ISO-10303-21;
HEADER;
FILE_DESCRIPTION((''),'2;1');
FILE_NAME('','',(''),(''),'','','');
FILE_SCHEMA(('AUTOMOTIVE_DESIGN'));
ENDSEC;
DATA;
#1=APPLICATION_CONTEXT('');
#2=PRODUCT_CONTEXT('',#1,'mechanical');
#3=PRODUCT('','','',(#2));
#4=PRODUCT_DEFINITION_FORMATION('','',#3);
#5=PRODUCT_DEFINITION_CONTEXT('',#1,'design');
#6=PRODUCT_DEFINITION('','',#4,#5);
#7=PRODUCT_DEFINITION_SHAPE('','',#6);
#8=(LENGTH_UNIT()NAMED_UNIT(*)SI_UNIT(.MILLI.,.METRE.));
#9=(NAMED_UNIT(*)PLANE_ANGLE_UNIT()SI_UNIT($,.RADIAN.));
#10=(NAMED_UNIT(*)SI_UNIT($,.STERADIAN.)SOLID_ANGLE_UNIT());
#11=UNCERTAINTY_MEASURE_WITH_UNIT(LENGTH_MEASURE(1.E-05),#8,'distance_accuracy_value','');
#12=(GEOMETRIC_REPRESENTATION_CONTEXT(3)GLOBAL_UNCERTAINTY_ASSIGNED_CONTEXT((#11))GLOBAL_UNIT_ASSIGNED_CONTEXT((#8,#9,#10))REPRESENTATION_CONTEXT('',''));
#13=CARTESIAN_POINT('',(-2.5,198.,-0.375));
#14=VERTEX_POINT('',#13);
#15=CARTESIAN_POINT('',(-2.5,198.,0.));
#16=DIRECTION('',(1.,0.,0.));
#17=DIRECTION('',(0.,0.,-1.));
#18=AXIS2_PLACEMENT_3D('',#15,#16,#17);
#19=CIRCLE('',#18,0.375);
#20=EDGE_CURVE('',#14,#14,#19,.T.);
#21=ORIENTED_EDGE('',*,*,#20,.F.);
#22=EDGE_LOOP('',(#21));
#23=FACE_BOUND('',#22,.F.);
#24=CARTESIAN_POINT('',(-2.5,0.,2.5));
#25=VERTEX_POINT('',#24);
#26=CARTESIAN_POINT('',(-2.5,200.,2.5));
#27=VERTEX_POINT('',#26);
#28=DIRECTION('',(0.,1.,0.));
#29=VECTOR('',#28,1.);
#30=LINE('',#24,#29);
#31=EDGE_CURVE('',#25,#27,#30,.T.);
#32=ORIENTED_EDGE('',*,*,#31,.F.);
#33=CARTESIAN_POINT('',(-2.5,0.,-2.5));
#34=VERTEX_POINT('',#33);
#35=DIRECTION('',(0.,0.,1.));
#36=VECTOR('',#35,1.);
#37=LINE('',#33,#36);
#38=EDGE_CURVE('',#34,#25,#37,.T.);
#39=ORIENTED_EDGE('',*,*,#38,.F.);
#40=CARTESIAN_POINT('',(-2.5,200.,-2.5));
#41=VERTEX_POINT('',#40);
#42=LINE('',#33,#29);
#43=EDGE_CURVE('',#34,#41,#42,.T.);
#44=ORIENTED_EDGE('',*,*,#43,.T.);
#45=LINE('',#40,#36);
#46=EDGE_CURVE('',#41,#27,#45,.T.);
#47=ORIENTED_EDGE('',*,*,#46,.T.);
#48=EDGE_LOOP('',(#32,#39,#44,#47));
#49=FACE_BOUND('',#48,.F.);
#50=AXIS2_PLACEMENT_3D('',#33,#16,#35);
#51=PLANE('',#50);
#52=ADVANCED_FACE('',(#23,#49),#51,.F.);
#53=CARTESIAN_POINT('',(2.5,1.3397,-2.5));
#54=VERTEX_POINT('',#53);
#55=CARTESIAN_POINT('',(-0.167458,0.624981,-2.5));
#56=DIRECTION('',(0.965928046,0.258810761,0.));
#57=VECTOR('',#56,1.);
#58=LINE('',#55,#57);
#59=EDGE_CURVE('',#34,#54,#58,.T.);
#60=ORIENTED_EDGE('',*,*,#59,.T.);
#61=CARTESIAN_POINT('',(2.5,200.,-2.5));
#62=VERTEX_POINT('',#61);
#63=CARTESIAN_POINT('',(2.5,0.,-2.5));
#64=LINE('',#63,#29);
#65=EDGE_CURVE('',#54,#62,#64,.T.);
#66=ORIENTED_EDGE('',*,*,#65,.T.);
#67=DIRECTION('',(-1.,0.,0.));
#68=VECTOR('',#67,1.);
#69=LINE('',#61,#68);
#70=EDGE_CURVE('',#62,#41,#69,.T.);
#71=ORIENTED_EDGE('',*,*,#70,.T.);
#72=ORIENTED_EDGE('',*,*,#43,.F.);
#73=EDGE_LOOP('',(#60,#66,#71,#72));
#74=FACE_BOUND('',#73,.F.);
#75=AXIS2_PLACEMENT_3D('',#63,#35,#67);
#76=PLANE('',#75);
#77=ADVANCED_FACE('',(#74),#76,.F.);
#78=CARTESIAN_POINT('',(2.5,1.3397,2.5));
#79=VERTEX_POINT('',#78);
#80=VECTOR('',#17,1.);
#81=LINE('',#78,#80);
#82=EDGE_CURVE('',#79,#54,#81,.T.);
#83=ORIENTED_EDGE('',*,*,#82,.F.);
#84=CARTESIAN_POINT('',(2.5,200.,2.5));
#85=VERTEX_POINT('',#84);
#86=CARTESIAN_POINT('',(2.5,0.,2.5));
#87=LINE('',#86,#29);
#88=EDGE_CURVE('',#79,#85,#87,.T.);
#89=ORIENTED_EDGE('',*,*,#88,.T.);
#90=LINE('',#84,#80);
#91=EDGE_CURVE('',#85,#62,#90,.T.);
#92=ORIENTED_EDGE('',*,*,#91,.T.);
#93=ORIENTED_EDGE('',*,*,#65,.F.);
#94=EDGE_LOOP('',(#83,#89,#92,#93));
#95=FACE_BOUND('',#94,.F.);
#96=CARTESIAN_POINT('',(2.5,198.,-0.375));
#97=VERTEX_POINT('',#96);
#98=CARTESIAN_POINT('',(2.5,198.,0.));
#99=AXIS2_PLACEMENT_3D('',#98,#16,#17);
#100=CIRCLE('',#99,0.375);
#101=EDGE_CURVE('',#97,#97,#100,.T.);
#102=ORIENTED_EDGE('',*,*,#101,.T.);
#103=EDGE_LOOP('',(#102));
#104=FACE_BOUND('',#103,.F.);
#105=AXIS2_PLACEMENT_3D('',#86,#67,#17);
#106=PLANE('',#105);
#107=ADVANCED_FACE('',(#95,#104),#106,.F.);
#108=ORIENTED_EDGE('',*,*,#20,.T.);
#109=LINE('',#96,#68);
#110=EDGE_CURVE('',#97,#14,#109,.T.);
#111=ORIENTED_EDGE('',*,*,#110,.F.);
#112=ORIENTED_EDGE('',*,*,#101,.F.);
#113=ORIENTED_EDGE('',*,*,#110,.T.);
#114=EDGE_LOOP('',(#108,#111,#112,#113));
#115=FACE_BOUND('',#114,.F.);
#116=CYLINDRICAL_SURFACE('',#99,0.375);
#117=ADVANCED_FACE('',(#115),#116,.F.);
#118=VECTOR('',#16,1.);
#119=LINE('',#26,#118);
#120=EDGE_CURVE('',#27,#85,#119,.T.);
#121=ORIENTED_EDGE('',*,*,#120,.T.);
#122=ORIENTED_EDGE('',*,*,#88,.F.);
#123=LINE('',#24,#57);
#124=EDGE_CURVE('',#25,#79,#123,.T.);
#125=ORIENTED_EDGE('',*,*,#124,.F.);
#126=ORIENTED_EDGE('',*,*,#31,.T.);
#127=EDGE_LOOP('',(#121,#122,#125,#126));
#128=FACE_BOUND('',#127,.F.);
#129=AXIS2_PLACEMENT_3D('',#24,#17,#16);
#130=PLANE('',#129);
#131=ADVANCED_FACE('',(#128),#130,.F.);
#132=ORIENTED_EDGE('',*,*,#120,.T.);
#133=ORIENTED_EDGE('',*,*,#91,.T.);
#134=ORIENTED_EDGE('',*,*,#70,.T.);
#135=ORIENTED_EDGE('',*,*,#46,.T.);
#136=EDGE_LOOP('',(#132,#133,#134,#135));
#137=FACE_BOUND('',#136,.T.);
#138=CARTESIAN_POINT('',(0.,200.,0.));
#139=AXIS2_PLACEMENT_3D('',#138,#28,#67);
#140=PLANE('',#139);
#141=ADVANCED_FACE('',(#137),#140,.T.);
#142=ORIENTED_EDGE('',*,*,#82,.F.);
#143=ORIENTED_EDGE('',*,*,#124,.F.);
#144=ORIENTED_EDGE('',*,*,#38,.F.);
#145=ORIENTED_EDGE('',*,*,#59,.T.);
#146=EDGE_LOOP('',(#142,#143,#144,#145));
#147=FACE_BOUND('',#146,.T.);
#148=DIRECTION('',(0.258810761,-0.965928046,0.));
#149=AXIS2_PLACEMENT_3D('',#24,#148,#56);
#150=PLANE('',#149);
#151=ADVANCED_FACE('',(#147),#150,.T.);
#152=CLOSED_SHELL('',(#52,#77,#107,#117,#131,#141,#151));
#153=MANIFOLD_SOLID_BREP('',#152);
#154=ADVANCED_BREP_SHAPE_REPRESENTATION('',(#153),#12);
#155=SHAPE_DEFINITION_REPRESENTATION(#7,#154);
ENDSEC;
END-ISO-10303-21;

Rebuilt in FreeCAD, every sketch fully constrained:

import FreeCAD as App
import Part
import Sketcher
Q = App.Units.Quantity

doc = App.newDocument("Part")
body = doc.addObject("PartDesign::Body", "Body")

sketch1 = body.newObject("Sketcher::SketchObject", "Sketch")
sketch1.AttachmentSupport = (doc.getObject("XZ_Plane"), [""])
sketch1.MapMode = "FlatFace"
sketch1.addGeometry([
    Part.LineSegment(App.Vector(-2.5, -2.5, 0), App.Vector(-2.5, 2.5, 0)),
    Part.LineSegment(App.Vector(-2.5, 2.5, 0), App.Vector(2.5, 2.5, 0)),
    Part.LineSegment(App.Vector(2.5, 2.5, 0), App.Vector(2.5, -2.5, 0)),
    Part.LineSegment(App.Vector(2.5, -2.5, 0), App.Vector(-2.5, -2.5, 0)),
], False)
sketch1.addConstraint([
    Sketcher.Constraint("Coincident", 0, 2, 1, 1),
    Sketcher.Constraint("Coincident", 1, 2, 2, 1),
    Sketcher.Constraint("Coincident", 2, 2, 3, 1),
    Sketcher.Constraint("Coincident", 3, 2, 0, 1),
    Sketcher.Constraint("Vertical", 0),
    Sketcher.Constraint("Horizontal", 1),
    Sketcher.Constraint("Vertical", 2),
    Sketcher.Constraint("Horizontal", 3),
    Sketcher.Constraint("Symmetric", 0, 2, 2, 2, -1, 1),
    Sketcher.Constraint("Equal", 3, 0),
    Sketcher.Constraint("DistanceX", 1, 1, 1, 2, Q("5 mm")),
])
pad1 = body.newObject("PartDesign::Pad", "Pad")
pad1.Profile = sketch1
pad1.Length = 200
pad1.Reversed = True

sketch2 = body.newObject("Sketcher::SketchObject", "Sketch001")
sketch2.AttachmentSupport = (doc.getObject("YZ_Plane"), [""])
sketch2.MapMode = "FlatFace"
sketch2.AttachmentOffset = App.Placement(App.Vector(0, 0, 2.5), App.Rotation())
sketch2.addGeometry(Part.Circle(App.Vector(198, 0, 0), App.Vector(0, 0, 1), 0.375), False)
sketch2.addConstraint([
    Sketcher.Constraint("PointOnObject", 0, 3, -1),
    Sketcher.Constraint("Diameter", 0, Q("0.75 mm")),
    Sketcher.Constraint("DistanceX", -1, 1, 0, 3, Q("198 mm")),
])
pocket1 = body.newObject("PartDesign::Pocket", "Pocket")
pocket1.Profile = sketch2
pocket1.Length = 200

sketch3 = body.newObject("Sketcher::SketchObject", "Sketch002")
sketch3.AttachmentSupport = (doc.getObject("XY_Plane"), [""])
sketch3.MapMode = "FlatFace"
sketch3.AttachmentOffset = App.Placement(App.Vector(0, 0, 2.5), App.Rotation())
sketch3.addGeometry([
    Part.LineSegment(App.Vector(-2.5, 0, 0), App.Vector(2.5, 0, 0)),
    Part.LineSegment(App.Vector(2.5, 0, 0), App.Vector(2.5, 1.3397, 0)),
    Part.LineSegment(App.Vector(2.5, 1.3397, 0), App.Vector(-2.5, 0, 0)),
], False)
sketch3.addConstraint([
    Sketcher.Constraint("Coincident", 0, 2, 1, 1),
    Sketcher.Constraint("Coincident", 1, 2, 2, 1),
    Sketcher.Constraint("Coincident", 2, 2, 0, 1),
    Sketcher.Constraint("Horizontal", 0),
    Sketcher.Constraint("Vertical", 1),
    Sketcher.Constraint("Symmetric", 0, 2, 2, 2, -1, 1),
    Sketcher.Constraint("DistanceX", 0, 1, 0, 2, Q("5 mm")),
    Sketcher.Constraint("Angle", 2, Q("-165.0005 deg")),
])
pocket2 = body.newObject("PartDesign::Pocket", "Pocket001")
pocket2.Profile = sketch3
pocket2.Length = 200

doc.recompute()
